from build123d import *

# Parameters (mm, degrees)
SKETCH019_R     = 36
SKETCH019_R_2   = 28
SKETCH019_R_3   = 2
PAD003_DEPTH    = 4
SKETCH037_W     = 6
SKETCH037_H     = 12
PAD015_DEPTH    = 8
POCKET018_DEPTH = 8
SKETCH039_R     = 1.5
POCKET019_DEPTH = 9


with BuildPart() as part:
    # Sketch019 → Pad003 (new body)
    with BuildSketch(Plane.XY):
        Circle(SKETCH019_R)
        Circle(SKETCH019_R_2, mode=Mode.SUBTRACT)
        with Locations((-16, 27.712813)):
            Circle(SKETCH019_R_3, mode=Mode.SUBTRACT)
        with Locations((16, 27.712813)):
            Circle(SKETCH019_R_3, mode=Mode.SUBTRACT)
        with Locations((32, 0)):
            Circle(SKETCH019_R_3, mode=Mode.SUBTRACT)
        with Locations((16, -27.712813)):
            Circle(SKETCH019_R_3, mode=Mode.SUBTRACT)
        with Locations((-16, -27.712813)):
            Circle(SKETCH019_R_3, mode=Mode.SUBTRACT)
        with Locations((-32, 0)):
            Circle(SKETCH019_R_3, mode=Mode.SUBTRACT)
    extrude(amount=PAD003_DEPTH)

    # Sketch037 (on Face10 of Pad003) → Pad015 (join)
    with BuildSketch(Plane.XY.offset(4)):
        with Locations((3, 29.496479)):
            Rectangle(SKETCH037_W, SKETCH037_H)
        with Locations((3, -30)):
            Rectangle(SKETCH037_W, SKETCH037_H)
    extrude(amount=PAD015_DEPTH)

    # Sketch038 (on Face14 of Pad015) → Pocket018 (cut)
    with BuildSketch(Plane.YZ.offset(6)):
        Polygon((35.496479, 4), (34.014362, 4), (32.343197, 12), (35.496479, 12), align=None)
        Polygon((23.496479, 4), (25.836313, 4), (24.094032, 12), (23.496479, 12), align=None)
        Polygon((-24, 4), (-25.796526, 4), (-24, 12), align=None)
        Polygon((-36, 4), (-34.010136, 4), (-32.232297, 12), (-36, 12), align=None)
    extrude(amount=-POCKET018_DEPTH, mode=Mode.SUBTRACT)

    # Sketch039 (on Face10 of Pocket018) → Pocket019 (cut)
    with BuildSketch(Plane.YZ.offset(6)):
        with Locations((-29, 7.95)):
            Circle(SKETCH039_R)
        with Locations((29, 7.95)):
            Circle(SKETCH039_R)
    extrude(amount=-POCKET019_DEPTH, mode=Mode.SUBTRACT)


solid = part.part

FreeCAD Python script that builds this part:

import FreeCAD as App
import Part
import Sketcher
from FreeCAD import Vector


def add_polygon(sketch, points):
    """Adds a closed chain of lines whose ends are joined by coincident constraints."""
    first, n = sketch.GeometryCount, len(points)
    for a, b in zip(points, points[1:] + points[:1]):
        sketch.addGeometry(Part.LineSegment(App.Vector(*a, 0), App.Vector(*b, 0)), False)
    for i in range(n):
        sketch.addConstraint(Sketcher.Constraint("Coincident", first + i, 2, first + (i + 1) % n, 1))

doc = App.newDocument("Part")
body = doc.addObject("PartDesign::Body", "Body")

# Sketch on XY plane
sketch1 = body.newObject("Sketcher::SketchObject", "Sketch")
sketch1.AttachmentSupport = (doc.getObject("XY_Plane"), [""])
sketch1.MapMode = "FlatFace"
sketch1.addGeometry([
    Part.Circle(Vector(0, 0, 0), Vector(0, 0, 1), 36),  # 0
    Part.Circle(Vector(-16, -27.712813, 0), Vector(0, 0, 1), 2),  # 1
    Part.Circle(Vector(16, -27.712813, 0), Vector(0, 0, 1), 2),  # 2
    Part.Circle(Vector(-32, 0, 0), Vector(0, 0, 1), 2),  # 3
    Part.Circle(Vector(-16, 27.712813, 0), Vector(0, 0, 1), 2),  # 4
    Part.Circle(Vector(0, 0, 0), Vector(0, 0, 1), 28),  # 5
    Part.Circle(Vector(32, 0, 0), Vector(0, 0, 1), 2),  # 6
    Part.Circle(Vector(16, 27.712813, 0), Vector(0, 0, 1), 2),  # 7
], False)
sketch1.addConstraint([
    Sketcher.Constraint("Coincident", 0, 3, -1, 1),
    Sketcher.Constraint("Coincident", 5, 3, -1, 1),
    Sketcher.Constraint("Equal", 1, 2),
    Sketcher.Constraint("Equal", 2, 3),
    Sketcher.Constraint("Equal", 3, 4),
    Sketcher.Constraint("Equal", 4, 6),
    Sketcher.Constraint("Equal", 6, 7),
    Sketcher.Constraint("Symmetric", 2, 3, 4, 3, -1, 1),
    Sketcher.Constraint("Symmetric", 3, 3, 6, 3, -1, 1),
    Sketcher.Constraint("Symmetric", 1, 3, 7, 3, -1, 1),
    Sketcher.Constraint("Symmetric", 1, 3, 2, 3, -2),
    Sketcher.Constraint("PointOnObject", 3, 3, -1),
    Sketcher.Constraint("Diameter", 0, 72.0),
    Sketcher.Constraint("Diameter", 1, 4.0),
    Sketcher.Constraint("Diameter", 5, 56.0),
    Sketcher.Constraint("DistanceX", 1, 3, -1, 1, 16.0),
    Sketcher.Constraint("DistanceX", 3, 3, -1, 1, 32.0),
    Sketcher.Constraint("DistanceY", 1, 3, -1, 1, 27.712813),
])
pad1 = body.newObject("PartDesign::Pad", "Pad")
pad1.Profile = sketch1
pad1.Length = 4

# Sketch on XY plane
sketch2 = body.newObject("Sketcher::SketchObject", "Sketch001")
sketch2.AttachmentSupport = (doc.getObject("XY_Plane"), [""])
sketch2.MapMode = "FlatFace"
sketch2.AttachmentOffset = App.Placement(Vector(0, 0, 4), App.Rotation())
add_polygon(sketch2, [(0, 35.496479), (0, 23.496479), (6, 23.496479), (6, 35.496479)])  # lines 0-3
add_polygon(sketch2, [(0, -24), (0, -36), (6, -36), (6, -24)])  # lines 4-7
sketch2.addConstraint([
    Sketcher.Constraint("Vertical", 0),
    Sketcher.Constraint("Horizontal", 1),
    Sketcher.Constraint("Vertical", 2),
    Sketcher.Constraint("Horizontal", 3),
    Sketcher.Constraint("Vertical", 4),
    Sketcher.Constraint("Horizontal", 5),
    Sketcher.Constraint("Vertical", 6),
    Sketcher.Constraint("Horizontal", 7),
    Sketcher.Constraint("PointOnObject", 0, 2, -2),
    Sketcher.Constraint("PointOnObject", 4, 2, -2),
    Sketcher.Constraint("Vertical", 2, 2, 5, 2),
    Sketcher.Constraint("Equal", 2, 4),
    Sketcher.Constraint("DistanceX", 1, 1, 1, 2, 6.0),
    Sketcher.Constraint("DistanceY", 0, 2, 0, 1, 12.0),
    Sketcher.Constraint("DistanceY", 4, 2, -1, 1, 36.0),
    Sketcher.Constraint("DistanceY", -1, 1, 0, 2, 23.496479),
])
pad2 = body.newObject("PartDesign::Pad", "Pad001")
pad2.Profile = sketch2
pad2.Length = 8

# Sketch on YZ plane
sketch3 = body.newObject("Sketcher::SketchObject", "Sketch002")
sketch3.AttachmentSupport = (doc.getObject("YZ_Plane"), [""])
sketch3.MapMode = "FlatFace"
sketch3.AttachmentOffset = App.Placement(Vector(0, 0, 6), App.Rotation())
add_polygon(sketch3, [(34.014362, 4), (35.496479, 4), (35.496479, 12), (32.343197, 12)])  # lines 0-3
add_polygon(sketch3, [(23.496479, 4), (25.836313, 4), (24.094032, 12), (23.496479, 12)])  # lines 4-7
add_polygon(sketch3, [(-25.796526, 4), (-24, 4), (-24, 12)])  # lines 8-10
add_polygon(sketch3, [(-36, 4), (-34.010136, 4), (-32.232297, 12), (-36, 12)])  # lines 11-14
sketch3.addConstraint([
    Sketcher.Constraint("Horizontal", 0),
    Sketcher.Constraint("Vertical", 1),
    Sketcher.Constraint("Horizontal", 2),
    Sketcher.Constraint("Horizontal", 4),
    Sketcher.Constraint("Horizontal", 6),
    Sketcher.Constraint("Vertical", 7),
    Sketcher.Constraint("Horizontal", 8),
    Sketcher.Constraint("Vertical", 9),
    Sketcher.Constraint("Horizontal", 11),
    Sketcher.Constraint("Horizontal", 13),
    Sketcher.Constraint("Vertical", 14),
    Sketcher.Constraint("Horizontal", 3, 2, 4, 2),
    Sketcher.Constraint("Horizontal", 2, 2, 5, 2),
    Sketcher.Constraint("Horizontal", 7, 2, 8, 2),
    Sketcher.Constraint("Horizontal", 6, 2, 9, 2),
    Sketcher.Constraint("Horizontal", 10, 2, 11, 2),
    Sketcher.Constraint("Horizontal", 9, 2, 12, 2),
    Sketcher.Constraint("DistanceY", 1, 1, 1, 2, 8.0),
    Sketcher.Constraint("DistanceY", -1, 1, 0, 2, 4.0),
    Sketcher.Constraint("DistanceX", 8, 2, -1, 1, 24.0),
    Sketcher.Constraint("DistanceX", 13, 2, -1, 1, 36.0),
    Sketcher.Constraint("DistanceX", 6, 2, 1, 2, 12.0),
    Sketcher.Constraint("DistanceX", 2, 2, 2, 1, 3.153282),
    Sketcher.Constraint("Distance", 10, 8.199238),
    Sketcher.Constraint("DistanceX", 0, 1, 0, 2, 1.482117),
    Sketcher.Constraint("DistanceX", 4, 1, 4, 2, 2.339834),
    Sketcher.Constraint("DistanceX", 6, 2, 6, 1, 0.597553),
    Sketcher.Constraint("DistanceX", 11, 1, 11, 2, 1.989864),
    Sketcher.Constraint("DistanceX", 13, 2, 13, 1, 3.767703),
    Sketcher.Constraint("DistanceX", -1, 1, 0, 2, 35.496479),
])
pocket1 = body.newObject("PartDesign::Pocket", "Pocket")
pocket1.Profile = sketch3
pocket1.Length = 8

# Sketch on YZ plane
sketch4 = body.newObject("Sketcher::SketchObject", "Sketch003")
sketch4.AttachmentSupport = (doc.getObject("YZ_Plane"), [""])
sketch4.MapMode = "FlatFace"
sketch4.AttachmentOffset = App.Placement(Vector(0, 0, 6), App.Rotation())
sketch4.addGeometry([
    Part.Circle(Vector(-29, 7.95, 0), Vector(0, 0, 1), 1.5),
    Part.Circle(Vector(29, 7.95, 0), Vector(0, 0, 1), 1.5),
], False)
sketch4.addConstraint([
    Sketcher.Constraint("Equal", 0, 1),
    Sketcher.Constraint("Symmetric", 0, 3, 1, 3, -2),
    Sketcher.Constraint("Diameter", 0, 3.0),
    Sketcher.Constraint("DistanceX", 0, 3, -1, 1, 29.0),
    Sketcher.Constraint("DistanceY", -1, 1, 0, 3, 7.95),
])
pocket2 = body.newObject("PartDesign::Pocket", "Pocket001")
pocket2.Profile = sketch4
pocket2.Length = 9

doc.recompute()
